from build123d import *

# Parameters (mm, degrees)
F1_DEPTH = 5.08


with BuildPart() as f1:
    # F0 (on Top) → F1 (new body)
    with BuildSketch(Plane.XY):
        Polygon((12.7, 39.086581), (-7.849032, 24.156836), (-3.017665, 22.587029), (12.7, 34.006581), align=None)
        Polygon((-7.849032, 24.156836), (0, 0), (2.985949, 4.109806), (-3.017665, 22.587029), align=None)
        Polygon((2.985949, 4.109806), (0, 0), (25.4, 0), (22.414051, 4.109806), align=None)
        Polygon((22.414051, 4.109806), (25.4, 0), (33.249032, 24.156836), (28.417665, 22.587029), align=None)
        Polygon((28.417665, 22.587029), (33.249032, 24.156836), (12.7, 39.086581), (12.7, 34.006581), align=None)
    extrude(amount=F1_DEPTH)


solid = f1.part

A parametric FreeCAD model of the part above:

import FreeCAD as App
import Part
import Sketcher
Q = App.Units.Quantity

doc = App.newDocument("Part")
body = doc.addObject("PartDesign::Body", "Body")

sketch1 = body.newObject("Sketcher::SketchObject", "Sketch")
sketch1.AttachmentSupport = (doc.getObject("XY_Plane"), [""])
sketch1.MapMode = "FlatFace"
sketch1.addGeometry(Part.LineSegment(App.Vector(13, 39, 0), App.Vector(-8, 24, 0)), False)
sketch1.addGeometry(Part.LineSegment(App.Vector(-8, 24, 0), App.Vector(0, 0, 0)), False)
sketch1.addGeometry(Part.LineSegment(App.Vector(0, 0, 0), App.Vector(25, 0, 0)), False)
sketch1.addGeometry(Part.LineSegment(App.Vector(25, 0, 0), App.Vector(33, 24, 0)), False)
sketch1.addGeometry(Part.LineSegment(App.Vector(33, 24, 0), App.Vector(13, 39, 0)), False)
sketch1.addGeometry(Part.LineSegment(App.Vector(28, 23, 0), App.Vector(22, 4, 0)), False)
sketch1.addGeometry(Part.LineSegment(App.Vector(22, 4, 0), App.Vector(3, 4, 0)), False)
sketch1.addGeometry(Part.LineSegment(App.Vector(3, 4, 0), App.Vector(-3, 23, 0)), False)
sketch1.addGeometry(Part.LineSegment(App.Vector(-3, 23, 0), App.Vector(13, 34, 0)), False)
sketch1.addGeometry(Part.LineSegment(App.Vector(13, 34, 0), App.Vector(28, 23, 0)), False)
sketch1.addConstraint(Sketcher.Constraint("Coincident", 0, 2, 1, 1))
sketch1.addConstraint(Sketcher.Constraint("Coincident", 1, 2, 2, 1))
sketch1.addConstraint(Sketcher.Constraint("Coincident", 2, 2, 3, 1))
sketch1.addConstraint(Sketcher.Constraint("Coincident", 3, 2, 4, 1))
sketch1.addConstraint(Sketcher.Constraint("Coincident", 4, 2, 0, 1))
sketch1.addConstraint(Sketcher.Constraint("Coincident", 5, 2, 6, 1))
sketch1.addConstraint(Sketcher.Constraint("Coincident", 6, 2, 7, 1))
sketch1.addConstraint(Sketcher.Constraint("Coincident", 7, 2, 8, 1))
sketch1.addConstraint(Sketcher.Constraint("Coincident", 8, 2, 9, 1))
sketch1.addConstraint(Sketcher.Constraint("Coincident", 9, 2, 5, 1))
sketch1.addConstraint(Sketcher.Constraint("Horizontal", 2))
sketch1.addConstraint(Sketcher.Constraint("Horizontal", 6))
sketch1.addConstraint(Sketcher.Constraint("Coincident", 1, 2, -1, 1))
sketch1.addConstraint(Sketcher.Constraint("Parallel", 3, 5))
sketch1.addConstraint(Sketcher.Constraint("Parallel", 1, 7))
sketch1.addConstraint(Sketcher.Constraint("Parallel", 0, 8))
sketch1.addConstraint(Sketcher.Constraint("Parallel", 4, 9))
sketch1.addConstraint(Sketcher.Constraint("Horizontal", 0, 2, 3, 2))
sketch1.addConstraint(Sketcher.Constraint("Horizontal", 7, 2, 9, 2))
sketch1.addConstraint(Sketcher.Constraint("Vertical", 4, 2, 8, 2))
sketch1.addConstraint(Sketcher.Constraint("Equal", 0, 1))
sketch1.addConstraint(Sketcher.Constraint("Equal", 1, 3))
sketch1.addConstraint(Sketcher.Constraint("Equal", 3, 4))
sketch1.addConstraint(Sketcher.Constraint("Equal", 7, 8))
sketch1.addConstraint(Sketcher.Constraint("DistanceX", 2, 1, 2, 2, Q("1 in")))
sketch1.addConstraint(Sketcher.Constraint("Distance", 0, Q("1 in")))
sketch1.addConstraint(Sketcher.Constraint("Angle", 0, Q("-144.000001 deg")))
sketch1.addConstraint(Sketcher.Constraint("DistanceY", 8, 2, 4, 2, Q("0.2 in")))
sketch1.addConstraint(Sketcher.Constraint("DistanceX", 6, 2, 6, 1, Q("19.428102 mm")))
pad1 = body.newObject("PartDesign::Pad", "Pad")
pad1.Profile = sketch1
pad1.Length = Q("0.2 in")

doc.recompute()
